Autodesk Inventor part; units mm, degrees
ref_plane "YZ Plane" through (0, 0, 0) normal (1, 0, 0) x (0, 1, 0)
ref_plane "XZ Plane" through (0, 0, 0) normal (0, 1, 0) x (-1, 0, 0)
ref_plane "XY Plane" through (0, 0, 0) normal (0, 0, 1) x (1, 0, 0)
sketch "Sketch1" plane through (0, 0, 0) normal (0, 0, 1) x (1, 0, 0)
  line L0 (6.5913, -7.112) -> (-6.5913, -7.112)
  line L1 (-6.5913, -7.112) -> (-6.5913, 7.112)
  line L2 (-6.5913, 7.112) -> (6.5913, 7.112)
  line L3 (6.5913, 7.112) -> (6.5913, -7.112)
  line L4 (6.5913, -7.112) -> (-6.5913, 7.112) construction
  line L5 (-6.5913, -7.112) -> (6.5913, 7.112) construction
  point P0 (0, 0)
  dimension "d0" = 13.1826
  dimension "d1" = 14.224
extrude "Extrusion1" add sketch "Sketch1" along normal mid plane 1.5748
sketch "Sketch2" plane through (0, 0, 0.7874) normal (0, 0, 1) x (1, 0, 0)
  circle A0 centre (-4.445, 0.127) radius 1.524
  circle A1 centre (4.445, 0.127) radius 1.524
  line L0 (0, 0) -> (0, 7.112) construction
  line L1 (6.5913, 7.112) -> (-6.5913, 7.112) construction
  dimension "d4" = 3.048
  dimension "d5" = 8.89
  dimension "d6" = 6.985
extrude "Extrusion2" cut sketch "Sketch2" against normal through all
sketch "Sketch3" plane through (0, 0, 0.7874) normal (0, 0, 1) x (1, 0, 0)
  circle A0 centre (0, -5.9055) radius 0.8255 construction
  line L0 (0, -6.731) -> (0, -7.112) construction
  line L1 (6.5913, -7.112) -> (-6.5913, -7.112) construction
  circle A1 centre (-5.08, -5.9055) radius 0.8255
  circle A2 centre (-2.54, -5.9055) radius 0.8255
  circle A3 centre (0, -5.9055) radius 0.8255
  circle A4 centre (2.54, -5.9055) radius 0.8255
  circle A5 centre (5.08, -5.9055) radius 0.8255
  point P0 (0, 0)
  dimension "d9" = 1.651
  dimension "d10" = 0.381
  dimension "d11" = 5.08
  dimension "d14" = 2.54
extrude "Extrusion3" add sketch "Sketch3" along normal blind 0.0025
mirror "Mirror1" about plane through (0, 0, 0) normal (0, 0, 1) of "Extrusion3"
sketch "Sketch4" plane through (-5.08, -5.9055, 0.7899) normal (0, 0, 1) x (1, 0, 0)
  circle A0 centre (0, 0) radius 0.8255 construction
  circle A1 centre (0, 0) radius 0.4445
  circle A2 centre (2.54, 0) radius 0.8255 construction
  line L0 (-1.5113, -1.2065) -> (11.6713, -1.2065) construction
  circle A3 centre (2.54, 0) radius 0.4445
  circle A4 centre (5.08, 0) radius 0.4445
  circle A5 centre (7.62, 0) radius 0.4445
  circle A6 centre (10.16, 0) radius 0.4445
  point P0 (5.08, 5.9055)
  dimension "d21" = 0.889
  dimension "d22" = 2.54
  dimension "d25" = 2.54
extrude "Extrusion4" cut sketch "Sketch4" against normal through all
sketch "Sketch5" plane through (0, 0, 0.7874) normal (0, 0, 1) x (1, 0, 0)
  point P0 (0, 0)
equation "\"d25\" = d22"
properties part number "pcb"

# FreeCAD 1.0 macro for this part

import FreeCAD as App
import Part
import Sketcher
from FreeCAD import Vector
Q = App.Units.Quantity

doc = App.newDocument("Part")
body = doc.addObject("PartDesign::Body", "Body")

sketch1 = body.newObject("Sketcher::SketchObject", "Sketch")
sketch1.AttachmentSupport = (doc.getObject("XY_Plane"), [""])
sketch1.MapMode = "FlatFace"
sketch1.addGeometry([
    Part.LineSegment(Vector(-7, -7, 0), Vector(7, -7, 0)),
    Part.LineSegment(Vector(7, -7, 0), Vector(7, 7, 0)),
    Part.LineSegment(Vector(7, 7, 0), Vector(-7, 7, 0)),
    Part.LineSegment(Vector(-7, 7, 0), Vector(-7, -7, 0)),
], False)
sketch1.addConstraint([
    Sketcher.Constraint("Coincident", 0, 2, 1, 1),
    Sketcher.Constraint("Coincident", 1, 2, 2, 1),
    Sketcher.Constraint("Coincident", 2, 2, 3, 1),
    Sketcher.Constraint("Coincident", 3, 2, 0, 1),
    Sketcher.Constraint("Horizontal", 0),
    Sketcher.Constraint("Vertical", 1),
    Sketcher.Constraint("Horizontal", 2),
    Sketcher.Constraint("Vertical", 3),
    Sketcher.Constraint("Symmetric", 0, 2, 2, 2, -1, 1),
    Sketcher.Constraint("DistanceY", 1, 1, 1, 2, Q("0.56 in")),
    Sketcher.Constraint("DistanceX", 0, 1, 0, 2, Q("0.519 in")),
])
pad1 = body.newObject("PartDesign::Pad", "Pad")
pad1.Profile = sketch1
pad1.Length = Q("0.062 in")
pad1.Midplane = True

sketch2 = body.newObject("Sketcher::SketchObject", "Sketch001")
sketch2.AttachmentSupport = (doc.getObject("XY_Plane"), [""])
sketch2.MapMode = "FlatFace"
sketch2.AttachmentOffset = App.Placement(Vector(0, 0, 0.031 * 25.4), App.Rotation())
sketch2.addGeometry([
    Part.Circle(Vector(-4.4, 0.1, 0), Vector(0, 0, 1), 1.5),
    Part.Circle(Vector(4.4, 0.1, 0), Vector(0, 0, 1), 1.5),
], False)
sketch2.addConstraint([
    Sketcher.Constraint("Equal", 0, 1),
    Sketcher.Constraint("Symmetric", 0, 3, 1, 3, -2),
    Sketcher.Constraint("Diameter", 0, Q("0.12 in")),
    Sketcher.Constraint("DistanceX", 0, 3, 1, 3, Q("0.35 in")),
    Sketcher.Constraint("DistanceY", -1, 1, 0, 3, Q("0.005 in")),
])
pocket1 = body.newObject("PartDesign::Pocket", "Pocket")
pocket1.Profile = sketch2
pocket1.Type = "ThroughAll"

sketch3 = body.newObject("Sketcher::SketchObject", "Sketch002")
sketch3.AttachmentSupport = (doc.getObject("XY_Plane"), [""])
sketch3.MapMode = "FlatFace"
sketch3.AttachmentOffset = App.Placement(Vector(0, 0, 0.031 * 25.4), App.Rotation())
sketch3.addGeometry([
    Part.Circle(Vector(-5.1, -5.9, 0), Vector(0, 0, 1), 0.8),
    Part.Circle(Vector(-2.5, -5.9, 0), Vector(0, 0, 1), 0.8),
    Part.Circle(Vector(0, -5.9, 0), Vector(0, 0, 1), 0.8),
    Part.Circle(Vector(2.5, -5.9, 0), Vector(0, 0, 1), 0.8),
    Part.Circle(Vector(5.1, -5.9, 0), Vector(0, 0, 1), 0.8),
], False)
sketch3.addConstraint([
    Sketcher.Constraint("Equal", 0, 1),
    Sketcher.Constraint("Equal", 1, 2),
    Sketcher.Constraint("Equal", 2, 3),
    Sketcher.Constraint("Equal", 3, 4),
    Sketcher.Constraint("Symmetric", 1, 3, 3, 3, -2),
    Sketcher.Constraint("Symmetric", 0, 3, 4, 3, -2),
    Sketcher.Constraint("PointOnObject", 2, 3, -2),
    Sketcher.Constraint("Horizontal", 0, 3, 1, 3),
    Sketcher.Constraint("Horizontal", 1, 3, 2, 3),
    Sketcher.Constraint("Diameter", 0, Q("0.065 in")),
    Sketcher.Constraint("DistanceX", 0, 3, -1, 1, Q("0.2 in")),
    Sketcher.Constraint("DistanceX", 1, 3, -1, 1, Q("0.1 in")),
    Sketcher.Constraint("DistanceY", 0, 3, -1, 1, Q("0.2325 in")),
])
pad2 = body.newObject("PartDesign::Pad", "Pad001")
pad2.Profile = sketch3
pad2.Length = Q("0.0000984 in")
doc.recompute()

mirrored = body.newObject("PartDesign::Mirrored", "Mirrored")
mirrored.Originals = [pad2]
mirrored.MirrorPlane = (doc.getObject("XY_Plane"), [""])
body.Tip = mirrored

sketch4 = body.newObject("Sketcher::SketchObject", "Sketch003")
sketch4.AttachmentSupport = (doc.getObject("XY_Plane"), [""])
sketch4.MapMode = "FlatFace"
sketch4.AttachmentOffset = App.Placement(Vector(0, 0, 0.0310984 * 25.4), App.Rotation())
sketch4.addGeometry([
    Part.Circle(Vector(-5.08, -5.91, 0), Vector(0, 0, 1), 0.44),
    Part.Circle(Vector(-2.54, -5.91, 0), Vector(0, 0, 1), 0.44),
    Part.Circle(Vector(0, -5.91, 0), Vector(0, 0, 1), 0.44),
    Part.Circle(Vector(2.54, -5.91, 0), Vector(0, 0, 1), 0.44),
    Part.Circle(Vector(5.08, -5.91, 0), Vector(0, 0, 1), 0.44),
], False)
sketch4.addConstraint([
    Sketcher.Constraint("Equal", 0, 1),
    Sketcher.Constraint("Equal", 1, 2),
    Sketcher.Constraint("Equal", 2, 3),
    Sketcher.Constraint("Equal", 3, 4),
    Sketcher.Constraint("Symmetric", 1, 3, 3, 3, -2),
    Sketcher.Constraint("Symmetric", 0, 3, 4, 3, -2),
    Sketcher.Constraint("PointOnObject", 2, 3, -2),
    Sketcher.Constraint("Horizontal", 0, 3, 1, 3),
    Sketcher.Constraint("Horizontal", 1, 3, 2, 3),
    Sketcher.Constraint("Diameter", 0, Q("0.035 in")),
    Sketcher.Constraint("DistanceX", 1, 3, -1, 1, Q("0.1 in")),
    Sketcher.Constraint("DistanceX", 0, 3, 1, 3, Q("0.1 in")),
    Sketcher.Constraint("DistanceY", 0, 3, -1, 1, Q("0.2325 in")),
])
pocket2 = body.newObject("PartDesign::Pocket", "Pocket001")
pocket2.Profile = sketch4
pocket2.Type = "ThroughAll"

doc.recompute()
